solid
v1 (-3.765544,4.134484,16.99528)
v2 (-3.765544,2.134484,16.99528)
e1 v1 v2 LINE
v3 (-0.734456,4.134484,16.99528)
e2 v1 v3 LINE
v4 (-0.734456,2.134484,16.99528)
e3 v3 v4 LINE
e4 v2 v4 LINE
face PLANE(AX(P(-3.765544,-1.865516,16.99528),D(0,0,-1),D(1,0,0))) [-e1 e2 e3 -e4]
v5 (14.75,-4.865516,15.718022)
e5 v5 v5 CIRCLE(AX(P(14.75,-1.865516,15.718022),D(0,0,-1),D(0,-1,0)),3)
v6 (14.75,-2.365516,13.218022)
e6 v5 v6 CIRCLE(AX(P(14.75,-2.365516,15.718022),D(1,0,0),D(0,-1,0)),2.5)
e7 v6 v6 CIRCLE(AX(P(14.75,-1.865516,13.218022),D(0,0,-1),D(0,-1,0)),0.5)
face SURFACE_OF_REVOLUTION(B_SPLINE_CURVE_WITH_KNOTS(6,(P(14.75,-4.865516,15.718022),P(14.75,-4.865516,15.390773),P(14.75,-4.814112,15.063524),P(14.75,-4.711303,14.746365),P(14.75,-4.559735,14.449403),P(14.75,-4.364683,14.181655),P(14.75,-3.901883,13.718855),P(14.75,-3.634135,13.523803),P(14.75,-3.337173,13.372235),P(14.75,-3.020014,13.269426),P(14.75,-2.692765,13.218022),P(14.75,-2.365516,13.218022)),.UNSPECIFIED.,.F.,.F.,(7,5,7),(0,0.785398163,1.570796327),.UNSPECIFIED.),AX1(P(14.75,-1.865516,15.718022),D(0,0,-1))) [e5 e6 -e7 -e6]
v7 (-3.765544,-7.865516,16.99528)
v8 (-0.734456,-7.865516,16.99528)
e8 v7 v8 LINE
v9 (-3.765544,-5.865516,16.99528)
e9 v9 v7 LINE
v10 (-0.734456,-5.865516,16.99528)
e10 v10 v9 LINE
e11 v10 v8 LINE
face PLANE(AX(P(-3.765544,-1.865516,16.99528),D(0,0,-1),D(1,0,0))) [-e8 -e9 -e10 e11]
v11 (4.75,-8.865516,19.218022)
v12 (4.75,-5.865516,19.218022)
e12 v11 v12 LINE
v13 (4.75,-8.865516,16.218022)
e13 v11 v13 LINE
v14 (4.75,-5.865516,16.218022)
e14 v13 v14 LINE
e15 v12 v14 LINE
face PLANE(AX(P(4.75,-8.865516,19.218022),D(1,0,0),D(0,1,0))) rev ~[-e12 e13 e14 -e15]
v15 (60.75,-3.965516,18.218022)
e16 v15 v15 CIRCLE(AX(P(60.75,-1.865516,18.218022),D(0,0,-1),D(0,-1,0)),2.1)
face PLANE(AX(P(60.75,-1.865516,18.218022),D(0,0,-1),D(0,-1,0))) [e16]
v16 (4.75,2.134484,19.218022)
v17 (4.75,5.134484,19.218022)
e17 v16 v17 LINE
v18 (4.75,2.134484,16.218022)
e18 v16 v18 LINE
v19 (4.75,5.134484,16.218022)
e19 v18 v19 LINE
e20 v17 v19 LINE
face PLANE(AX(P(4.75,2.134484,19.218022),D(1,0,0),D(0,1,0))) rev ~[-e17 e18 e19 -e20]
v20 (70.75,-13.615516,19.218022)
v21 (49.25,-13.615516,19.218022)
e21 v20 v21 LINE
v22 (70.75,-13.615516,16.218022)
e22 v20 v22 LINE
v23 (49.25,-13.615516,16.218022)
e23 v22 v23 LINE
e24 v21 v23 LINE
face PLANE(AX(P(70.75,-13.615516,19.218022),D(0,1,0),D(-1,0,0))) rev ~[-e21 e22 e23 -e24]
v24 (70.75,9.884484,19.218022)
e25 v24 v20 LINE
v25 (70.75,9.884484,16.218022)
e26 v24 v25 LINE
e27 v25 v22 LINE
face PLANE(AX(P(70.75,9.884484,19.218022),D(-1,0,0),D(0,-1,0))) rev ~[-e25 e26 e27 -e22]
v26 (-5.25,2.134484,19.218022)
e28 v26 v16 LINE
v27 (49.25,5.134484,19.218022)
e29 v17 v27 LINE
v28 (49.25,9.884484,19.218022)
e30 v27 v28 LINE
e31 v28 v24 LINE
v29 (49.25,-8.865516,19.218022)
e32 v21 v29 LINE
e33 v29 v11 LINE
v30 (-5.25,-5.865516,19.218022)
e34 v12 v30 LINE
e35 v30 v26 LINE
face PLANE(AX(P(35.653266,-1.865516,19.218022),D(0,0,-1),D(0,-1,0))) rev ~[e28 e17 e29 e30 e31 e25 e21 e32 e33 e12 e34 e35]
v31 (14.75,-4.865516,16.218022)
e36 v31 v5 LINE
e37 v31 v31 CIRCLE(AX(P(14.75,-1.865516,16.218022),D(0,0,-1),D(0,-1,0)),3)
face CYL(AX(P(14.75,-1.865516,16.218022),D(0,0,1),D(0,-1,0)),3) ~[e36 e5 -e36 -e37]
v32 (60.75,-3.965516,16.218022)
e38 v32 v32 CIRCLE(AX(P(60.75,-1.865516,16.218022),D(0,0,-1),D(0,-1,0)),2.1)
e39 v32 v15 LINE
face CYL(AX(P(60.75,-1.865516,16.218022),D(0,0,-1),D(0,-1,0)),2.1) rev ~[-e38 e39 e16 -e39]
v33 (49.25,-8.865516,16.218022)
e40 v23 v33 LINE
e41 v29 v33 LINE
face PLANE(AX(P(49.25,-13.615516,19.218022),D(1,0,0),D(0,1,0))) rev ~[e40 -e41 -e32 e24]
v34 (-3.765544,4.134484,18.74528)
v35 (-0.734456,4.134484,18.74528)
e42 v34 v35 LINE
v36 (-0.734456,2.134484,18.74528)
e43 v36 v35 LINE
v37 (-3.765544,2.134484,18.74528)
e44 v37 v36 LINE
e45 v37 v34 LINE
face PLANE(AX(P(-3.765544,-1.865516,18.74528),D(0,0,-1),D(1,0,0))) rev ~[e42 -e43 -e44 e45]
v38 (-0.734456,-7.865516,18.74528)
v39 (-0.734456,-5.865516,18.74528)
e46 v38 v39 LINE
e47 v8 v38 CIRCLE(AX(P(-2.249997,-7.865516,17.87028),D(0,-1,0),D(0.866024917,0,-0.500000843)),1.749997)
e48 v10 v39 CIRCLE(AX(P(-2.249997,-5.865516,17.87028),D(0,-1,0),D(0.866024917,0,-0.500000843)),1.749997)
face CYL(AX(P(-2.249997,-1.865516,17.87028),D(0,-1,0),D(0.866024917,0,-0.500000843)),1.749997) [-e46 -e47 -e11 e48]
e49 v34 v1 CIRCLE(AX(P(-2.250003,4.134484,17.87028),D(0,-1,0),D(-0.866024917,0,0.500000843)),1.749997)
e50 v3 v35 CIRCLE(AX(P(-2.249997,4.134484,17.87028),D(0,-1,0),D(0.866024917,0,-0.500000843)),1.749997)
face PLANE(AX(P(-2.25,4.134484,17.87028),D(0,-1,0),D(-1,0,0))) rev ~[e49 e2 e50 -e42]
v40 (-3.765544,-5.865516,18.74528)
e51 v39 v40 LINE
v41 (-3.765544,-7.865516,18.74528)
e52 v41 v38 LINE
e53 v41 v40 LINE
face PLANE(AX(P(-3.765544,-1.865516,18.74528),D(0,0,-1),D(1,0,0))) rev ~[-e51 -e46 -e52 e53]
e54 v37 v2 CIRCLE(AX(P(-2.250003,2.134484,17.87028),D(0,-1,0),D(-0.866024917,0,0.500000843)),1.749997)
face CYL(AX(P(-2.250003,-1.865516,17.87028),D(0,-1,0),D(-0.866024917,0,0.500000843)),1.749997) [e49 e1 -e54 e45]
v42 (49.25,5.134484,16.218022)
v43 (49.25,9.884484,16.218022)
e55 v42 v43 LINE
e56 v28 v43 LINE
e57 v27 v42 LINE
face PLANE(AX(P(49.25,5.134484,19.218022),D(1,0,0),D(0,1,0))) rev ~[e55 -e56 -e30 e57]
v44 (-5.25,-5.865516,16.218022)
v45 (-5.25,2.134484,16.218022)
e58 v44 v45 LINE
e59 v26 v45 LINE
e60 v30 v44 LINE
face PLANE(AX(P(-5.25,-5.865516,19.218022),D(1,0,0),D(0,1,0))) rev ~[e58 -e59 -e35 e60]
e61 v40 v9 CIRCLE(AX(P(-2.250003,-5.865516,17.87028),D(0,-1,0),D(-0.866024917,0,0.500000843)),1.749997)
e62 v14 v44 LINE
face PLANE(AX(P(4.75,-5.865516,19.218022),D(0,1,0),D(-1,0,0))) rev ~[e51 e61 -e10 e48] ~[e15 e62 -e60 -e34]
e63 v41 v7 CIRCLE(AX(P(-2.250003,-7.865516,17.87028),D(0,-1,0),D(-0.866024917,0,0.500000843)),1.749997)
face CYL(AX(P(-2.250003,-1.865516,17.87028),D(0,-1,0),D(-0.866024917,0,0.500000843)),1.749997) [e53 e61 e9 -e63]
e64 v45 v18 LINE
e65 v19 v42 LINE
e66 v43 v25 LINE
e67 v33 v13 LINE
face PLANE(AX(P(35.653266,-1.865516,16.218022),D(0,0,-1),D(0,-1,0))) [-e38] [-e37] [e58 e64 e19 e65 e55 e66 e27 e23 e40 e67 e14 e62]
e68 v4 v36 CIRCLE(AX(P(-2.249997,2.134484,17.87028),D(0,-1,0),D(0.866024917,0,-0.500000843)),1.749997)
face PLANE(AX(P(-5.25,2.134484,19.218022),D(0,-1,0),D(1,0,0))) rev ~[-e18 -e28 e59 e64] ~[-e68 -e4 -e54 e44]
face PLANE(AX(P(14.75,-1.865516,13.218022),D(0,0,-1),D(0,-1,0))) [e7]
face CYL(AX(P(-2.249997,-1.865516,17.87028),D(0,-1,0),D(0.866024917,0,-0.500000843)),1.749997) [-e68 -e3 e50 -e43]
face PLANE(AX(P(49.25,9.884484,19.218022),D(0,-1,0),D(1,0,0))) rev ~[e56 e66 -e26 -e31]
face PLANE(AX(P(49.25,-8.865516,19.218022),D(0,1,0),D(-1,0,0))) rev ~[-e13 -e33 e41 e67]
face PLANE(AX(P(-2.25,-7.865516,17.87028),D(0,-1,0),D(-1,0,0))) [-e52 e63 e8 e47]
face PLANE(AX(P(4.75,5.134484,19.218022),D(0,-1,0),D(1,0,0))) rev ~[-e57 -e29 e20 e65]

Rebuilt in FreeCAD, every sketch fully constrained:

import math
import FreeCAD as App
import Part
import Sketcher
from FreeCAD import Vector


def edges_at(feature, points):
    """Names of the edges that pass closest to the given points."""
    edges = feature.Shape.Edges
    near = lambda p: min(range(len(edges)), key=lambda i: edges[i].distToShape(Part.Vertex(*p))[0])
    return sorted({f"Edge{near(p) + 1}" for p in points})


def add_polygon(sketch, points):
    """Adds a closed chain of lines whose ends are joined by coincident constraints."""
    first, n = sketch.GeometryCount, len(points)
    for a, b in zip(points, points[1:] + points[:1]):
        sketch.addGeometry(Part.LineSegment(App.Vector(*a, 0), App.Vector(*b, 0)), False)
    for i in range(n):
        sketch.addConstraint(Sketcher.Constraint("Coincident", first + i, 2, first + (i + 1) % n, 1))

doc = App.newDocument("Part")
body = doc.addObject("PartDesign::Body", "Body")

# Sketch on XY plane
sketch1 = body.newObject("Sketcher::SketchObject", "Sketch")
sketch1.AttachmentSupport = (doc.getObject("XY_Plane"), [""])
sketch1.MapMode = "FlatFace"
add_polygon(sketch1, [(-11.75, -33), (11.75, -33), (11.75, -11.5), (7, -11.5), (7, 33), (4, 33), (4, 43), (-4, 43), (-4, 33), (-7, 33), (-7, -11.5), (-11.75, -11.5)])  # lines 0-11
sketch1.addConstraint([
    Sketcher.Constraint("Horizontal", 0),
    Sketcher.Constraint("Vertical", 1),
    Sketcher.Constraint("Horizontal", 2),
    Sketcher.Constraint("Vertical", 3),
    Sketcher.Constraint("Horizontal", 4),
    Sketcher.Constraint("Vertical", 5),
    Sketcher.Constraint("Horizontal", 6),
    Sketcher.Constraint("Vertical", 7),
    Sketcher.Constraint("Horizontal", 8),
    Sketcher.Constraint("Vertical", 9),
    Sketcher.Constraint("Horizontal", 10),
    Sketcher.Constraint("Vertical", 11),
    Sketcher.Constraint("Symmetric", 4, 2, 7, 2, -2),
    Sketcher.Constraint("Symmetric", 2, 2, 9, 2, -2),
    Sketcher.Constraint("Equal", 2, 10),
    Sketcher.Constraint("DistanceX", 4, 2, 4, 1, 3.0),
    Sketcher.Constraint("DistanceX", 6, 2, 6, 1, 8.0),
    Sketcher.Constraint("DistanceY", 5, 1, 5, 2, 10.0),
    Sketcher.Constraint("DistanceX", 0, 1, 0, 2, 23.5),
    Sketcher.Constraint("DistanceY", 1, 1, 1, 2, 21.5),
    Sketcher.Constraint("DistanceY", 3, 1, 3, 2, 44.5),
    Sketcher.Constraint("DistanceY", 0, 2, -1, 1, 33.0),
])
pad1 = body.newObject("PartDesign::Pad", "Pad")
pad1.Profile = sketch1
pad1.Length = 3

# Sketch on YZ plane
sketch2 = body.newObject("Sketcher::SketchObject", "Sketch001")
sketch2.AttachmentSupport = (doc.getObject("YZ_Plane"), [""])
sketch2.MapMode = "FlatFace"
sketch2.addGeometry([
    Part.ArcOfCircle(Part.Circle(Vector(40.000003, 1.347742, 0), Vector(0, 0, 1), 1.749997), math.radians(-30.000056), math.radians(30.000056)),
    Part.LineSegment(Vector(41.515544, 2.222742, 0), Vector(38.484456, 2.222742, 0)),
    Part.ArcOfCircle(Part.Circle(Vector(39.999997, 1.347742, 0), Vector(0, 0, 1), 1.749997), math.radians(149.999944), math.radians(210.000056)),
    Part.LineSegment(Vector(38.484456, 0.472742, 0), Vector(41.515544, 0.472742, 0)),
], False)
sketch2.addConstraint([
    Sketcher.Constraint("Coincident", 0, 2, 1, 1),
    Sketcher.Constraint("Coincident", 1, 2, 2, 1),
    Sketcher.Constraint("Coincident", 2, 2, 3, 1),
    Sketcher.Constraint("Coincident", 3, 2, 0, 1),
    Sketcher.Constraint("Horizontal", 1),
    Sketcher.Constraint("Horizontal", 3),
    Sketcher.Constraint("Coincident", 2, 3, 0, 3),
    Sketcher.Constraint("Equal", 0, 2),
    Sketcher.Constraint("Vertical", 1, 2, 2, 2),
    Sketcher.Constraint("DistanceY", 2, 2, 1, 2, 1.75),
    Sketcher.Constraint("Radius", 0, 1.749997),
    Sketcher.Constraint("DistanceY", -1, 1, 0, 2, 2.222742),
    Sketcher.Constraint("DistanceX", -1, 1, 0, 3, 40.000003),
])
pad2 = body.newObject("PartDesign::Pad", "Pad001")
pad2.Profile = sketch2
pad2.Length = 12
pad2.Midplane = True

# Sketch on XY plane
sketch3 = body.newObject("Sketcher::SketchObject", "Sketch002")
sketch3.AttachmentSupport = (doc.getObject("XY_Plane"), [""])
sketch3.MapMode = "FlatFace"
sketch3.AttachmentOffset = App.Placement(Vector(0, 0, 3), App.Rotation())
sketch3.addGeometry(Part.Circle(Vector(0, -23, 0), Vector(0, 0, 1), 2.1), False)
sketch3.addConstraint([
    Sketcher.Constraint("PointOnObject", 0, 3, -2),
    Sketcher.Constraint("Diameter", 0, 4.2),
    Sketcher.Constraint("DistanceY", 0, 3, -1, 1, 23.0),
])
pocket1 = body.newObject("PartDesign::Pocket", "Pocket")
pocket1.Profile = sketch3
pocket1.Length = 2

# Sketch on XY plane
sketch4 = body.newObject("Sketcher::SketchObject", "Sketch003")
sketch4.AttachmentSupport = (doc.getObject("XY_Plane"), [""])
sketch4.MapMode = "FlatFace"
sketch4.AttachmentOffset = App.Placement(Vector(0, 0, 3), App.Rotation())
sketch4.addGeometry(Part.Circle(Vector(0, 23, 0), Vector(0, 0, 1), 3), False)
sketch4.addConstraint([
    Sketcher.Constraint("PointOnObject", 0, 3, -2),
    Sketcher.Constraint("Diameter", 0, 6.0),
    Sketcher.Constraint("DistanceY", -1, 1, 0, 3, 23.0),
])
pad3 = body.newObject("PartDesign::Pad", "Pad002")
pad3.Profile = sketch4
pad3.Length = 3
doc.recompute()

fillet = body.newObject("PartDesign::Fillet", "Fillet")
fillet.Base = (pad3, edges_at(pad3, [(-3, 23, 6)]))
fillet.Radius = 2.5
body2 = doc.addObject("PartDesign::Body", "Body001")
doc.recompute()

body.Placement = App.Placement(Vector(0, 0, 0), App.Rotation(Vector(1, 0, 0), 180))
boolean = body2.newObject("PartDesign::Boolean", "Boolean")
boolean.Type = "Fuse"
boolean.addObjects([body])
body3 = doc.addObject("PartDesign::Body", "Body002")
doc.recompute()

body2.Placement = App.Placement(Vector(37.75, -1.865516, 19.218022), App.Rotation(Vector(0, 0, 1), 270))
boolean2 = body3.newObject("PartDesign::Boolean", "Boolean001")
boolean2.Type = "Fuse"
boolean2.addObjects([body2])

doc.recompute()
